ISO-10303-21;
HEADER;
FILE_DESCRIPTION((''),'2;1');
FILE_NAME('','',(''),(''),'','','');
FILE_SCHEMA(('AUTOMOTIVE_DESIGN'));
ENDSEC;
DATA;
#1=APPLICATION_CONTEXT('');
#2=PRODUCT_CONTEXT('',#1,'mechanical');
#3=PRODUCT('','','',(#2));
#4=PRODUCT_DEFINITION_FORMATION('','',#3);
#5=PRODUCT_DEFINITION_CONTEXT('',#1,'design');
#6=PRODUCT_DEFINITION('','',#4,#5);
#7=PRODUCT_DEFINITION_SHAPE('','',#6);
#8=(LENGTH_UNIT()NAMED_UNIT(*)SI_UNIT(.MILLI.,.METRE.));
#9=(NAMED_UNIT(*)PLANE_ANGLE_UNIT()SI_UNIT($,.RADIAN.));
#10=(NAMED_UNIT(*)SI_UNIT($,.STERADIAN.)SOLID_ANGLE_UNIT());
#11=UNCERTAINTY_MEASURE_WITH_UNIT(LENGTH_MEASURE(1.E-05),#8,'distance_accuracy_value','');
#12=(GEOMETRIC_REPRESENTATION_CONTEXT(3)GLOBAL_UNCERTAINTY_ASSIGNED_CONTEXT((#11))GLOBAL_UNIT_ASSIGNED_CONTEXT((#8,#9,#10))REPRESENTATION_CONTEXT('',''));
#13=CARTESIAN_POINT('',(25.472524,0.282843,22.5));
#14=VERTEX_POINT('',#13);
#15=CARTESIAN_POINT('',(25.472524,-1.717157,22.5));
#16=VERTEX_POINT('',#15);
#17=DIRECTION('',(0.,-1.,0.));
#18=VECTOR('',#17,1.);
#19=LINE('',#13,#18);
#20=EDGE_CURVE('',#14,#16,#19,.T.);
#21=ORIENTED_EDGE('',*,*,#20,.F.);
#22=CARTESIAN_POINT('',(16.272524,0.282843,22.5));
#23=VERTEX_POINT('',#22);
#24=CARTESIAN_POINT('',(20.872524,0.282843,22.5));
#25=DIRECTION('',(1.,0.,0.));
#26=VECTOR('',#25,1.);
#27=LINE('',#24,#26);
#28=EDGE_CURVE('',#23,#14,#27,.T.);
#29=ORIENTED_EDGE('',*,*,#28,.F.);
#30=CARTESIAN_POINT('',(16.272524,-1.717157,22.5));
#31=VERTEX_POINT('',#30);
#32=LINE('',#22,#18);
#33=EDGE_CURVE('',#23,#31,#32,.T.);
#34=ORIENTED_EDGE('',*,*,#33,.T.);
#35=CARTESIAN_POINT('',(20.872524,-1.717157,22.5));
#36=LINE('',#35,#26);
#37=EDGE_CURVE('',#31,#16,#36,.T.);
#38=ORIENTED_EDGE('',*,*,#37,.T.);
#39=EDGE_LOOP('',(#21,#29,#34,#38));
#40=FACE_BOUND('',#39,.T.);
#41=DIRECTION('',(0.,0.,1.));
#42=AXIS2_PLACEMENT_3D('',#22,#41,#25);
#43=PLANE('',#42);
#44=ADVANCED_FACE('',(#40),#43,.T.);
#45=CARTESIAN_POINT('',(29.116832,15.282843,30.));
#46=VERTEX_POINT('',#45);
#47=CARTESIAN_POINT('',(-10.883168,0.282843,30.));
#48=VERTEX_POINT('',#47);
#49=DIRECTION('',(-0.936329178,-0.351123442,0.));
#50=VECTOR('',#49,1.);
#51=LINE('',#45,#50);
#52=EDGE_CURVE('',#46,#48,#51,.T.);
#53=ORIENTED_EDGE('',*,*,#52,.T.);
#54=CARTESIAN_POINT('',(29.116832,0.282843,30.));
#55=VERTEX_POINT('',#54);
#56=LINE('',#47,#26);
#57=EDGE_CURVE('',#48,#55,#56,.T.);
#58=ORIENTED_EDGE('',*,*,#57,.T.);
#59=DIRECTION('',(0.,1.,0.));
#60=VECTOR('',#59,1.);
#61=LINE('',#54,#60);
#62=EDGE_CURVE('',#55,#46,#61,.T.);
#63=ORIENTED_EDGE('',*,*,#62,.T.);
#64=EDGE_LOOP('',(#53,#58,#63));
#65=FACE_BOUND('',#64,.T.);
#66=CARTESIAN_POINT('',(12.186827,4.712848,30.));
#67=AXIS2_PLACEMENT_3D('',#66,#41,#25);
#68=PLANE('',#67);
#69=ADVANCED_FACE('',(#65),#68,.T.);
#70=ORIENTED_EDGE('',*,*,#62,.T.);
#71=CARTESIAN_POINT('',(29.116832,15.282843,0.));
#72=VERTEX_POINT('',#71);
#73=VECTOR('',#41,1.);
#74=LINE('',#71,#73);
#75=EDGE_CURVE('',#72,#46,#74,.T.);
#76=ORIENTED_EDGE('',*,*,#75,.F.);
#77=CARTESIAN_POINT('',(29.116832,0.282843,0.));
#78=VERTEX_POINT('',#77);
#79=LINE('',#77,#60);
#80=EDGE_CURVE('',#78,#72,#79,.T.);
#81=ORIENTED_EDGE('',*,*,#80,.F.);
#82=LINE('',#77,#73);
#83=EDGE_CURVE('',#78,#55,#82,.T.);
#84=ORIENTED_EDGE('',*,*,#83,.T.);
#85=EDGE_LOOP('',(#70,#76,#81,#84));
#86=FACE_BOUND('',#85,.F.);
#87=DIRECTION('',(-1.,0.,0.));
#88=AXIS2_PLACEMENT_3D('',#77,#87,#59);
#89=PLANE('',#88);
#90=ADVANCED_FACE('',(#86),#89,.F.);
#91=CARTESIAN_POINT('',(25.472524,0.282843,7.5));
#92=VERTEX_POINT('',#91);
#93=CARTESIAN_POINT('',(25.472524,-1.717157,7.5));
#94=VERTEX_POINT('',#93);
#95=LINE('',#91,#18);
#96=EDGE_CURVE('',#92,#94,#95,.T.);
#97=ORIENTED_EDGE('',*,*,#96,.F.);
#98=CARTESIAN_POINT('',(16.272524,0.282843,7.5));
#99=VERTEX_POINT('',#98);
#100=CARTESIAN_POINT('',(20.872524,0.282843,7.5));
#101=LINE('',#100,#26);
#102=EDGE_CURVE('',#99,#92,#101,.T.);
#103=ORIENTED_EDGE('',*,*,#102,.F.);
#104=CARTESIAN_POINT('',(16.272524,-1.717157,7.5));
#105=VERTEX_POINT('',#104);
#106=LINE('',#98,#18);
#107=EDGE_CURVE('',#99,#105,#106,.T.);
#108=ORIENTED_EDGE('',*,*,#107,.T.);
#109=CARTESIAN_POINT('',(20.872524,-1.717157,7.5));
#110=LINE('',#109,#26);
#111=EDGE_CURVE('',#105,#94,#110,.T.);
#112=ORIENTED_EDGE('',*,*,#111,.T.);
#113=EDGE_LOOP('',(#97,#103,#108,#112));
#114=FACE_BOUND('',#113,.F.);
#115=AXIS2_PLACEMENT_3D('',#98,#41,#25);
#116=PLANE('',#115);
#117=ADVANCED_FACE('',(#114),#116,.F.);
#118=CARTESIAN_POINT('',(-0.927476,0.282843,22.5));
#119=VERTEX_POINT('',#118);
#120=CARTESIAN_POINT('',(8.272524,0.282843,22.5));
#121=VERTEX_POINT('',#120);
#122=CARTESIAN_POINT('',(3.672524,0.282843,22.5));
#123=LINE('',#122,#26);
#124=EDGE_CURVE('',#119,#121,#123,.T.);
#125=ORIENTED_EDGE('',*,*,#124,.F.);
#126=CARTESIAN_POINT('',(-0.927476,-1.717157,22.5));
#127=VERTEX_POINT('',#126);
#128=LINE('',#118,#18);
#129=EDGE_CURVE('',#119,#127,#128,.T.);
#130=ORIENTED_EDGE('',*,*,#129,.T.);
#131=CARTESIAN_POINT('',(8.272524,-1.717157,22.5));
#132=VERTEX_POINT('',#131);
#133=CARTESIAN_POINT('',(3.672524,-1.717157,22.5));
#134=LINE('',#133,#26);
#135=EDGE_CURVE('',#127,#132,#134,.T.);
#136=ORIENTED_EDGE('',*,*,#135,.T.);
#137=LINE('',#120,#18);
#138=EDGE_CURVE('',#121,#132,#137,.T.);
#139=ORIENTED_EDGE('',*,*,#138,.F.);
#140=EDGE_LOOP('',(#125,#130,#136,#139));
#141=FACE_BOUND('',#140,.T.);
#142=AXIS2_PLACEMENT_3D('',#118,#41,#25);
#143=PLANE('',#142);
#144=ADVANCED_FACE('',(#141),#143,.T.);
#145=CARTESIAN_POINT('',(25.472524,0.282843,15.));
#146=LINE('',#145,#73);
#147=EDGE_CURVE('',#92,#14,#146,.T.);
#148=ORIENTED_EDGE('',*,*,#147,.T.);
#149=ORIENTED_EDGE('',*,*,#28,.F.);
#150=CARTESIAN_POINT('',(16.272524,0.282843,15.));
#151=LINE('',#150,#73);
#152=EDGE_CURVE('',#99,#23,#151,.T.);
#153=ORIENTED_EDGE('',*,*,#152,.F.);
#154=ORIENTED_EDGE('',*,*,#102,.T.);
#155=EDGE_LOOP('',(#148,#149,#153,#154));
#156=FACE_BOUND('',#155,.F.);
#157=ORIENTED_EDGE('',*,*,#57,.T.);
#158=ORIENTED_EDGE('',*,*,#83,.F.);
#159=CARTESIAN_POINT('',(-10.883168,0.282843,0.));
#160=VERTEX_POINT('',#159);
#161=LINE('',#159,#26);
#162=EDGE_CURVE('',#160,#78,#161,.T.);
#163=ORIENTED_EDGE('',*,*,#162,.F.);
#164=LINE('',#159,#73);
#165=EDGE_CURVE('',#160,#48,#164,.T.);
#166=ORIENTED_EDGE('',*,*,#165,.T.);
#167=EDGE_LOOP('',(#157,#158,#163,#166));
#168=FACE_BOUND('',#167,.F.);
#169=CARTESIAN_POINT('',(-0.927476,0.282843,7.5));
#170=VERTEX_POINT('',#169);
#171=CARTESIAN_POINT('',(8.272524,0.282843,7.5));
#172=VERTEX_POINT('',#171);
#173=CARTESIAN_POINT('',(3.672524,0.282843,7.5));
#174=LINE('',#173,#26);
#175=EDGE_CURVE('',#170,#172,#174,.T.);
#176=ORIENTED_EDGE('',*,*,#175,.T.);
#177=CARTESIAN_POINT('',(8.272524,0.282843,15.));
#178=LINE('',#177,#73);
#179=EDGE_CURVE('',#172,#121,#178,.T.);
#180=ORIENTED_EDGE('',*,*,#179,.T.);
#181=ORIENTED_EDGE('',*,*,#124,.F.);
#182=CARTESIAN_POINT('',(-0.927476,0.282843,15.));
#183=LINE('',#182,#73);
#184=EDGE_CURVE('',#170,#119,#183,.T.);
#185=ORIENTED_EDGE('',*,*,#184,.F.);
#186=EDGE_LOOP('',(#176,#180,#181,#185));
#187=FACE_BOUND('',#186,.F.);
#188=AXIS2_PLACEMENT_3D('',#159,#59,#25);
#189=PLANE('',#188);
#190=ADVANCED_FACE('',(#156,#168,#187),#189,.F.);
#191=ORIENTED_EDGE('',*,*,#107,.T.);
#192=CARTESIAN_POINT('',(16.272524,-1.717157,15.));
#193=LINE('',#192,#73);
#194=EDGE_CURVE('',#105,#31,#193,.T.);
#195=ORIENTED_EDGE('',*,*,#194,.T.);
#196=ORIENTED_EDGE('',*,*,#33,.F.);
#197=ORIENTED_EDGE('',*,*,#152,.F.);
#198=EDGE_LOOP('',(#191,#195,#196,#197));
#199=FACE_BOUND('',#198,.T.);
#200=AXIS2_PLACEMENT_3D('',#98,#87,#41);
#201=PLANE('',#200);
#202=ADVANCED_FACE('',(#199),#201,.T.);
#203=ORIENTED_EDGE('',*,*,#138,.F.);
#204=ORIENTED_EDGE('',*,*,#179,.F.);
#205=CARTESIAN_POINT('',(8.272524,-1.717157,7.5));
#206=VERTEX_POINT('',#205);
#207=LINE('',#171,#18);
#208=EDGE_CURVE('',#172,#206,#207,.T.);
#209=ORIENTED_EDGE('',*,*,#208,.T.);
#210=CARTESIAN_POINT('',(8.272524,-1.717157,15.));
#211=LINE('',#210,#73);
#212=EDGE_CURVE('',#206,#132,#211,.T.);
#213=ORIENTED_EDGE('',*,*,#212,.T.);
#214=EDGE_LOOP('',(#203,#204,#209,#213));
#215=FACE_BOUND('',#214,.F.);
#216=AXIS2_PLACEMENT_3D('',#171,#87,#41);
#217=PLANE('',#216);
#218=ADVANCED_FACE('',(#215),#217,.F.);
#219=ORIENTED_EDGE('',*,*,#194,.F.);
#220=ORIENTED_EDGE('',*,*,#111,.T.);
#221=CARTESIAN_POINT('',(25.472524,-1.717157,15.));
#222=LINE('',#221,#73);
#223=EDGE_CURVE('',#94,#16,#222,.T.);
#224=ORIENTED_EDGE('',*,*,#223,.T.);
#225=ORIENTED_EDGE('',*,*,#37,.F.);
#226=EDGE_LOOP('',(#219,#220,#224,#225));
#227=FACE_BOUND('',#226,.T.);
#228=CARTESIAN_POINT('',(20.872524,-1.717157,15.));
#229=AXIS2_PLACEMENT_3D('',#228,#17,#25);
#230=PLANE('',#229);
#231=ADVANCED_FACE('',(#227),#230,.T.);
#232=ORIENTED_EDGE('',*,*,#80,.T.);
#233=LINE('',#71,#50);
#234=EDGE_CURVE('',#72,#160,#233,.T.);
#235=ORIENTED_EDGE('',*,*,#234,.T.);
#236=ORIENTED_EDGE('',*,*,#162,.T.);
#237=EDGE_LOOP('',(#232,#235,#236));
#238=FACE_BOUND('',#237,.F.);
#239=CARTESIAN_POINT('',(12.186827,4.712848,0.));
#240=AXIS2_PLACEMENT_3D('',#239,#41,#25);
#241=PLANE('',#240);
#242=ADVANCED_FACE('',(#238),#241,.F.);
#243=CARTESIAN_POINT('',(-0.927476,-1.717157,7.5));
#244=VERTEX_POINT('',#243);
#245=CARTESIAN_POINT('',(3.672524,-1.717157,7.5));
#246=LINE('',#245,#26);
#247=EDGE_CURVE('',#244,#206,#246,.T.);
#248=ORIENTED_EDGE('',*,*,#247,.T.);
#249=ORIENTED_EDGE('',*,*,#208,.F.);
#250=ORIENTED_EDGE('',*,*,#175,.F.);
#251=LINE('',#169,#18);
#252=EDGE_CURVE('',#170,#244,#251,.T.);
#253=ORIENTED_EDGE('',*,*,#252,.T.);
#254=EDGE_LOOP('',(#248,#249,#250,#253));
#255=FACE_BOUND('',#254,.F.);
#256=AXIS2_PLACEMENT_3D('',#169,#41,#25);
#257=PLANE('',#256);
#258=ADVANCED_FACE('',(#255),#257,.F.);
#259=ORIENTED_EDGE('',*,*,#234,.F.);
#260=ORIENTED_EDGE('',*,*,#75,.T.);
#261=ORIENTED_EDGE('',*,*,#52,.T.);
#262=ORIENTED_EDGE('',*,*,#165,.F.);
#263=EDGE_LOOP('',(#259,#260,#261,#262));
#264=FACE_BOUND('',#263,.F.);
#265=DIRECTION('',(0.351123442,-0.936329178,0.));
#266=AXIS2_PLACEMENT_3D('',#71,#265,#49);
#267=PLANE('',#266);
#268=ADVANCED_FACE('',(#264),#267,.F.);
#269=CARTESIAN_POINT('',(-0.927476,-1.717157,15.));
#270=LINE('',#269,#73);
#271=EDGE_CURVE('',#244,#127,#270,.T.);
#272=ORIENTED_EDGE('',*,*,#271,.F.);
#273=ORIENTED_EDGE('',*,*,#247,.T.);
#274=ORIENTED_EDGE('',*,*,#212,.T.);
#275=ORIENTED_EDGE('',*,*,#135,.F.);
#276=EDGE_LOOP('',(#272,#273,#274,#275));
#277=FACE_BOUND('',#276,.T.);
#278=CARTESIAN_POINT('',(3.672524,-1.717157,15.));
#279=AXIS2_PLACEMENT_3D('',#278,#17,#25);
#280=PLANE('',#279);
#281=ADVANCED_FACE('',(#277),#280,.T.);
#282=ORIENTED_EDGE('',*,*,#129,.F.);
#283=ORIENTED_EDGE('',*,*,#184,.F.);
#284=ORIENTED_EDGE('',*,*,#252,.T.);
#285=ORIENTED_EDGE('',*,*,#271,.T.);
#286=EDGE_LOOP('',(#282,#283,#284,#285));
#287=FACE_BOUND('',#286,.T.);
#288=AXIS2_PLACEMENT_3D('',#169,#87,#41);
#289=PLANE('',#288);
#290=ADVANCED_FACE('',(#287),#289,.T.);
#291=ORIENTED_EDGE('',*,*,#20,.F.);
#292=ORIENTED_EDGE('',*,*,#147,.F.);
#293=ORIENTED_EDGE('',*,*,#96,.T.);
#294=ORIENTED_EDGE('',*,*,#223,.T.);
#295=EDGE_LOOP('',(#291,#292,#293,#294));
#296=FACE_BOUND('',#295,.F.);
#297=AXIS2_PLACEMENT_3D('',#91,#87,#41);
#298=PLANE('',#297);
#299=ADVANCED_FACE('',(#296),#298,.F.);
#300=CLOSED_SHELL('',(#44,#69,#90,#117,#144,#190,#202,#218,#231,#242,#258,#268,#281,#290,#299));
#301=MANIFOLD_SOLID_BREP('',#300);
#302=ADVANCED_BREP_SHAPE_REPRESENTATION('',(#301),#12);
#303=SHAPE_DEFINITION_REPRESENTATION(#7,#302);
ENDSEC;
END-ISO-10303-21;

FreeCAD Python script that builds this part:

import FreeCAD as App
import Part
import Sketcher


def add_polygon(sketch, points):
    """Adds a closed chain of lines whose ends are joined by coincident constraints."""
    first, n = sketch.GeometryCount, len(points)
    for a, b in zip(points, points[1:] + points[:1]):
        sketch.addGeometry(Part.LineSegment(App.Vector(*a, 0), App.Vector(*b, 0)), False)
    for i in range(n):
        sketch.addConstraint(Sketcher.Constraint("Coincident", first + i, 2, first + (i + 1) % n, 1))

doc = App.newDocument("Part")
body = doc.addObject("PartDesign::Body", "Body")

sketch1 = doc.addObject("Sketcher::SketchObject", "Sketch")
body.addObject(sketch1)
sketch1.AttachmentSupport = (doc.XY_Plane, [""])
sketch1.MapMode = "FlatFace"
add_polygon(sketch1, [(-11, 0), (29, 0), (29, 15)])
sketch1.addConstraint([
    Sketcher.Constraint("Horizontal", 0),
    Sketcher.Constraint("Vertical", 1),
    Sketcher.Constraint("DistanceX", 0, 1, 0, 2, 40.0),
    Sketcher.Constraint("DistanceY", 1, 1, 1, 2, 15.0),
    Sketcher.Constraint("DistanceX", -1, 1, 0, 2, 29.116832),
    Sketcher.Constraint("DistanceY", -1, 1, 0, 2, 0.282843),
])
pad1 = doc.addObject("PartDesign::Pad", "Pad")
body.addObject(pad1)
pad1.Profile = sketch1
pad1.Length = 30

sketch2 = doc.addObject("Sketcher::SketchObject", "Sketch001")
body.addObject(sketch2)
sketch2.AttachmentSupport = (doc.XZ_Plane, [""])
sketch2.MapMode = "FlatFace"
sketch2.AttachmentOffset = App.Placement(App.Vector(0, 0, -0.282843), App.Rotation())
add_polygon(sketch2, [(-1, 22), (-1, 8), (8, 8), (8, 22)])
add_polygon(sketch2, [(16, 22), (16, 8), (25, 8), (25, 22)])
sketch2.addConstraint([
    Sketcher.Constraint("Vertical", 0),
    Sketcher.Constraint("Horizontal", 1),
    Sketcher.Constraint("Vertical", 2),
    Sketcher.Constraint("Horizontal", 3),
    Sketcher.Constraint("Vertical", 4),
    Sketcher.Constraint("Horizontal", 5),
    Sketcher.Constraint("Vertical", 6),
    Sketcher.Constraint("Horizontal", 7),
    Sketcher.Constraint("Horizontal", 1, 2, 4, 2),
    Sketcher.Constraint("Horizontal", 3, 2, 6, 2),
    Sketcher.Constraint("Equal", 3, 5),
    Sketcher.Constraint("DistanceY", 0, 2, 0, 1, 15.0),
    Sketcher.Constraint("DistanceX", 1, 1, 1, 2, 9.2),
    Sketcher.Constraint("DistanceX", 1, 2, 4, 2, 8.0),
    Sketcher.Constraint("DistanceY", -1, 1, 0, 2, 7.5),
    Sketcher.Constraint("DistanceX", 0, 2, -1, 1, 0.927476),
])
pad2 = doc.addObject("PartDesign::Pad", "Pad001")
body.addObject(pad2)
pad2.Profile = sketch2
pad2.Length = 2

doc.recompute()
